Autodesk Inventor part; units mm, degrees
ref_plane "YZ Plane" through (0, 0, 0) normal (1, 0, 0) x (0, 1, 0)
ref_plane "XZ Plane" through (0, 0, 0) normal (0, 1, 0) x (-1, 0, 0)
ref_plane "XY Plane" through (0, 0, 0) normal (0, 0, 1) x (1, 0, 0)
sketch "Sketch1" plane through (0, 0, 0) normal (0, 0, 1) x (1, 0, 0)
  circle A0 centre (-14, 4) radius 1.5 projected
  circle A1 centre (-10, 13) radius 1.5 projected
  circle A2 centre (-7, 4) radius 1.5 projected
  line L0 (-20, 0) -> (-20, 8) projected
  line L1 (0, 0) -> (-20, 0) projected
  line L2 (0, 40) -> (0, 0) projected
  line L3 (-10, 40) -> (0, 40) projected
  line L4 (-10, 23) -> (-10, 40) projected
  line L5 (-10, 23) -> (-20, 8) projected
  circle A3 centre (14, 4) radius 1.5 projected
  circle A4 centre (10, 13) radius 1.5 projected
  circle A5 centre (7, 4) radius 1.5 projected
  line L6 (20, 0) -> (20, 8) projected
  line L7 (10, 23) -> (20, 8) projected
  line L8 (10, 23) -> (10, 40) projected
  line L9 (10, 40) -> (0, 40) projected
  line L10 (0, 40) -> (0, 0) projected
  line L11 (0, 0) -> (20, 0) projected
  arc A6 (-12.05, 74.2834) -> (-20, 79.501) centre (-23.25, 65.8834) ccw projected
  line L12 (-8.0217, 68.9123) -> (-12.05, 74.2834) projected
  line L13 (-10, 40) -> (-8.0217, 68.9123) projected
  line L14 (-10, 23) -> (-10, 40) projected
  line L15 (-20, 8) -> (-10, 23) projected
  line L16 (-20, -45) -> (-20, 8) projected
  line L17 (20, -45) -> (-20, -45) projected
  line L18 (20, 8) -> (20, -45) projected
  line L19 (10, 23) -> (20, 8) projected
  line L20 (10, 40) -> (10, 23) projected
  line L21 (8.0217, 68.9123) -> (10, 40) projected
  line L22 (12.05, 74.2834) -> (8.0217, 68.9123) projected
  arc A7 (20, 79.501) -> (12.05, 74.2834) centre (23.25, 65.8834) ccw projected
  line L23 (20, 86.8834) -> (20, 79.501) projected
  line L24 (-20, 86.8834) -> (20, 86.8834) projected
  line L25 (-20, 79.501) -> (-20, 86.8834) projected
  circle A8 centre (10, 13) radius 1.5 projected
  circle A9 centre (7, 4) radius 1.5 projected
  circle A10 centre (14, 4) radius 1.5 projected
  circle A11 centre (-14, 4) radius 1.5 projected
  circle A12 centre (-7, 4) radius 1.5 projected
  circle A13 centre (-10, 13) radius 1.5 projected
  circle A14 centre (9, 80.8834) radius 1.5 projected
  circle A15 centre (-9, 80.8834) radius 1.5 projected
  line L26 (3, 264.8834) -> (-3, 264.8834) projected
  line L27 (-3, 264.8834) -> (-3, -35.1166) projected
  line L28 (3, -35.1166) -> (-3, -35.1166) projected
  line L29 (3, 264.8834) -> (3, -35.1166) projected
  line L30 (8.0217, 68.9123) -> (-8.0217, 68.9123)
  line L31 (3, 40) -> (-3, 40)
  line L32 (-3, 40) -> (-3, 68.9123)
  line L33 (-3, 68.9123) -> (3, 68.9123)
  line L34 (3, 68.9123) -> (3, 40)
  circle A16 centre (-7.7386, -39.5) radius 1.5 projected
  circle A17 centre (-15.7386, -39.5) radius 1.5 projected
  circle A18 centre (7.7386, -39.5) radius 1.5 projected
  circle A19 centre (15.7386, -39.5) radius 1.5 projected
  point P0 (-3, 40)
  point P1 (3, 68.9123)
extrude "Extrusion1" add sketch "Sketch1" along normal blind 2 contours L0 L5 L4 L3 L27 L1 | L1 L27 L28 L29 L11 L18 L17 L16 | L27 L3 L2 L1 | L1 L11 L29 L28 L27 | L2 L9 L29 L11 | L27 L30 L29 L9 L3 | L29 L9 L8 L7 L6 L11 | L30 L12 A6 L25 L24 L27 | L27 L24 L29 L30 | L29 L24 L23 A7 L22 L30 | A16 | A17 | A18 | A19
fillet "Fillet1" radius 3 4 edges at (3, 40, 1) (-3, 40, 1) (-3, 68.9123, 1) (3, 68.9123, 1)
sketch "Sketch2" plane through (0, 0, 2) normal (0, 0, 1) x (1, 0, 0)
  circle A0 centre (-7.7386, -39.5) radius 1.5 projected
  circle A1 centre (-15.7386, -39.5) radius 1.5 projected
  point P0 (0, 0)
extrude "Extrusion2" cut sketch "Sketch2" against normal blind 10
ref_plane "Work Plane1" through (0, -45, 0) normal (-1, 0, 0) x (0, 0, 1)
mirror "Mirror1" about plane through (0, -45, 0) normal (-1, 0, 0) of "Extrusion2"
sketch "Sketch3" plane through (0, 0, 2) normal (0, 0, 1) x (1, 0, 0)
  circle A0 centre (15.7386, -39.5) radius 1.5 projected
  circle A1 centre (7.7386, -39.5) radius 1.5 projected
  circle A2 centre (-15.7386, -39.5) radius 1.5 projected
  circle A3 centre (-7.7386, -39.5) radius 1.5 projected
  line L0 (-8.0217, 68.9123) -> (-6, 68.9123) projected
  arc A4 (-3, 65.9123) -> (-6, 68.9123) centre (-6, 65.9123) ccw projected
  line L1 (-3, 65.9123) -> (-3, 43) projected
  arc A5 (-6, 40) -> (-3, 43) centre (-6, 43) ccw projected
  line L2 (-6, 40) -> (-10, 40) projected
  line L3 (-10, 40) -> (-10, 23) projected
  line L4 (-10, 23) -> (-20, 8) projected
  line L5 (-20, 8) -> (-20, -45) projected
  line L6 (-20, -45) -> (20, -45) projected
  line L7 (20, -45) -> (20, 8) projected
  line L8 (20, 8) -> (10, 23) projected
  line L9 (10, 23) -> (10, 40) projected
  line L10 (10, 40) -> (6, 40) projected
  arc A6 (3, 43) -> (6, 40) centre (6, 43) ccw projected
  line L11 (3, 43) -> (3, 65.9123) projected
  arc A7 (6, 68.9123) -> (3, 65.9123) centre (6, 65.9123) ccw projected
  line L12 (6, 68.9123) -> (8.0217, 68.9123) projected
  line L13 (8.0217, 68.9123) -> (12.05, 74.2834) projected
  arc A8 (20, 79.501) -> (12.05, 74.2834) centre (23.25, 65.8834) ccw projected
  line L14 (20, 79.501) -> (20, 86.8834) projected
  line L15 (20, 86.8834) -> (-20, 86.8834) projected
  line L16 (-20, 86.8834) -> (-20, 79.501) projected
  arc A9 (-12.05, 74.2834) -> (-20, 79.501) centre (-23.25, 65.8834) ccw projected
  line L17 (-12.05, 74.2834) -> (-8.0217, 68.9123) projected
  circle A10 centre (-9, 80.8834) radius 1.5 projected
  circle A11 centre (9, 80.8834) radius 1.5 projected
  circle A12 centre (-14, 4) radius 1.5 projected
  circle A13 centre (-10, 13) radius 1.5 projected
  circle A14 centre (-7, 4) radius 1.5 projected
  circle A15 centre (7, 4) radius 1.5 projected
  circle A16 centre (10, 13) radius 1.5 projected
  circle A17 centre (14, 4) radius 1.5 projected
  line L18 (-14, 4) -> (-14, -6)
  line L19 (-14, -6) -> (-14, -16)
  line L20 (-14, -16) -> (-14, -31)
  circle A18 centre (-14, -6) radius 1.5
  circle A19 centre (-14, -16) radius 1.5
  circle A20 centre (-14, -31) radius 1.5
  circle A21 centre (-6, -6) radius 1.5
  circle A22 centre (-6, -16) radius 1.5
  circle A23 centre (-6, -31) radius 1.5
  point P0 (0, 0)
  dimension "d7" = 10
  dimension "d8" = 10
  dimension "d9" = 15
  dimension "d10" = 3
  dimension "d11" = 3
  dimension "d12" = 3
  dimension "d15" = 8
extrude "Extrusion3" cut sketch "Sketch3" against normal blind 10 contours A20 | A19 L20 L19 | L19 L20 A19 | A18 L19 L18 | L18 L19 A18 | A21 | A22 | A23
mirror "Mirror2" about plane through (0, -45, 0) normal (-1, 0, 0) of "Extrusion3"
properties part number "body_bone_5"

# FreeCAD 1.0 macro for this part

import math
import FreeCAD as App
import Part
import Sketcher
Q = App.Units.Quantity


def edges_at(feature, points):
    """Names of the edges that pass closest to the given points."""
    edges = feature.Shape.Edges
    near = lambda p: min(range(len(edges)), key=lambda i: edges[i].distToShape(Part.Vertex(*p))[0])
    return sorted({f"Edge{near(p) + 1}" for p in points})

doc = App.newDocument("Part")
body = doc.addObject("PartDesign::Body", "Body")

# Sketch on XY plane
sketch1 = doc.addObject("Sketcher::SketchObject", "Sketch")
body.addObject(sketch1)
sketch1.AttachmentSupport = (doc.XY_Plane, [""])
sketch1.MapMode = "FlatFace"
sketch1.addGeometry(Part.LineSegment(App.Vector(-20, 8, 0), App.Vector(-20, -45, 0)), False)
sketch1.addGeometry(Part.LineSegment(App.Vector(-20, -45, 0), App.Vector(20, -45, 0)), False)
sketch1.addGeometry(Part.LineSegment(App.Vector(20, -45, 0), App.Vector(20, 8, 0)), False)
sketch1.addGeometry(Part.LineSegment(App.Vector(20, 8, 0), App.Vector(10, 23, 0)), False)
sketch1.addGeometry(Part.LineSegment(App.Vector(10, 23, 0), App.Vector(10, 40, 0)), False)
sketch1.addGeometry(Part.LineSegment(App.Vector(10, 40, 0), App.Vector(3, 40, 0)), False)
sketch1.addGeometry(Part.LineSegment(App.Vector(3, 40, 0), App.Vector(3, 68.9, 0)), False)
sketch1.addGeometry(Part.LineSegment(App.Vector(3, 68.9, 0), App.Vector(8, 68.9, 0)), False)
sketch1.addGeometry(Part.LineSegment(App.Vector(8, 68.9, 0), App.Vector(12.1, 74.3, 0)), False)
sketch1.addGeometry(Part.ArcOfCircle(Part.Circle(App.Vector(23.2, 65.9, 0), App.Vector(0, 0, 1), 14), math.radians(103), math.radians(143)), False)
sketch1.addGeometry(Part.LineSegment(App.Vector(20, 79.5, 0), App.Vector(20, 86.9, 0)), False)
sketch1.addGeometry(Part.LineSegment(App.Vector(20, 86.9, 0), App.Vector(-20, 86.9, 0)), False)
sketch1.addGeometry(Part.LineSegment(App.Vector(-20, 86.9, 0), App.Vector(-20, 79.5, 0)), False)
sketch1.addGeometry(Part.ArcOfCircle(Part.Circle(App.Vector(-23.2, 65.9, 0), App.Vector(0, 0, 1), 14), math.radians(37), math.radians(77)), False)
sketch1.addGeometry(Part.LineSegment(App.Vector(-12.1, 74.3, 0), App.Vector(-8, 68.9, 0)), False)
sketch1.addGeometry(Part.LineSegment(App.Vector(-8, 68.9, 0), App.Vector(-3, 68.9, 0)), False)
sketch1.addGeometry(Part.LineSegment(App.Vector(-3, 68.9, 0), App.Vector(-3, 40, 0)), False)
sketch1.addGeometry(Part.LineSegment(App.Vector(-3, 40, 0), App.Vector(-10, 40, 0)), False)
sketch1.addGeometry(Part.LineSegment(App.Vector(-10, 40, 0), App.Vector(-10, 23, 0)), False)
sketch1.addGeometry(Part.LineSegment(App.Vector(-10, 23, 0), App.Vector(-20, 8, 0)), False)
sketch1.addGeometry(Part.Circle(App.Vector(-14, 4, 0), App.Vector(0, 0, 1), 1.5), False)
sketch1.addGeometry(Part.Circle(App.Vector(-10, 13, 0), App.Vector(0, 0, 1), 1.5), False)
sketch1.addGeometry(Part.Circle(App.Vector(-7, 4, 0), App.Vector(0, 0, 1), 1.5), False)
sketch1.addGeometry(Part.Circle(App.Vector(10, 13, 0), App.Vector(0, 0, 1), 1.5), False)
sketch1.addGeometry(Part.Circle(App.Vector(14, 4, 0), App.Vector(0, 0, 1), 1.5), False)
sketch1.addGeometry(Part.Circle(App.Vector(7, 4, 0), App.Vector(0, 0, 1), 1.5), False)
sketch1.addGeometry(Part.Circle(App.Vector(-9, 80.9, 0), App.Vector(0, 0, 1), 1.5), False)
sketch1.addGeometry(Part.Circle(App.Vector(9, 80.9, 0), App.Vector(0, 0, 1), 1.5), False)
sketch1.addConstraint(Sketcher.Constraint("Coincident", 0, 2, 1, 1))
sketch1.addConstraint(Sketcher.Constraint("Coincident", 1, 2, 2, 1))
sketch1.addConstraint(Sketcher.Constraint("Coincident", 2, 2, 3, 1))
sketch1.addConstraint(Sketcher.Constraint("Coincident", 3, 2, 4, 1))
sketch1.addConstraint(Sketcher.Constraint("Coincident", 4, 2, 5, 1))
sketch1.addConstraint(Sketcher.Constraint("Coincident", 5, 2, 6, 1))
sketch1.addConstraint(Sketcher.Constraint("Coincident", 6, 2, 7, 1))
sketch1.addConstraint(Sketcher.Constraint("Coincident", 7, 2, 8, 1))
sketch1.addConstraint(Sketcher.Constraint("Tangent", 8, 2, 9, 2))
sketch1.addConstraint(Sketcher.Constraint("Coincident", 9, 1, 10, 1))
sketch1.addConstraint(Sketcher.Constraint("Coincident", 10, 2, 11, 1))
sketch1.addConstraint(Sketcher.Constraint("Coincident", 11, 2, 12, 1))
sketch1.addConstraint(Sketcher.Constraint("Coincident", 12, 2, 13, 2))
sketch1.addConstraint(Sketcher.Constraint("Tangent", 13, 1, 14, 1))
sketch1.addConstraint(Sketcher.Constraint("Coincident", 14, 2, 15, 1))
sketch1.addConstraint(Sketcher.Constraint("Coincident", 15, 2, 16, 1))
sketch1.addConstraint(Sketcher.Constraint("Coincident", 16, 2, 17, 1))
sketch1.addConstraint(Sketcher.Constraint("Coincident", 17, 2, 18, 1))
sketch1.addConstraint(Sketcher.Constraint("Coincident", 18, 2, 19, 1))
sketch1.addConstraint(Sketcher.Constraint("Coincident", 19, 2, 0, 1))
sketch1.addConstraint(Sketcher.Constraint("Vertical", 0))
sketch1.addConstraint(Sketcher.Constraint("Horizontal", 1))
sketch1.addConstraint(Sketcher.Constraint("Vertical", 2))
sketch1.addConstraint(Sketcher.Constraint("Vertical", 4))
sketch1.addConstraint(Sketcher.Constraint("Horizontal", 5))
sketch1.addConstraint(Sketcher.Constraint("Vertical", 6))
sketch1.addConstraint(Sketcher.Constraint("Horizontal", 7))
sketch1.addConstraint(Sketcher.Constraint("Vertical", 10))
sketch1.addConstraint(Sketcher.Constraint("Horizontal", 11))
sketch1.addConstraint(Sketcher.Constraint("Vertical", 12))
sketch1.addConstraint(Sketcher.Constraint("Horizontal", 15))
sketch1.addConstraint(Sketcher.Constraint("Vertical", 16))
sketch1.addConstraint(Sketcher.Constraint("Horizontal", 17))
sketch1.addConstraint(Sketcher.Constraint("Vertical", 18))
sketch1.addConstraint(Sketcher.Constraint("Equal", 9, 13))
sketch1.addConstraint(Sketcher.Constraint("Equal", 20, 21))
sketch1.addConstraint(Sketcher.Constraint("Equal", 21, 22))
sketch1.addConstraint(Sketcher.Constraint("Equal", 22, 23))
sketch1.addConstraint(Sketcher.Constraint("Equal", 23, 24))
sketch1.addConstraint(Sketcher.Constraint("Equal", 24, 25))
sketch1.addConstraint(Sketcher.Constraint("Equal", 25, 26))
sketch1.addConstraint(Sketcher.Constraint("Equal", 26, 27))
sketch1.addConstraint(Sketcher.Constraint("Symmetric", 9, 3, 13, 3, -2))
sketch1.addConstraint(Sketcher.Constraint("Symmetric", 21, 3, 23, 3, -2))
sketch1.addConstraint(Sketcher.Constraint("Symmetric", 20, 3, 24, 3, -2))
sketch1.addConstraint(Sketcher.Constraint("Symmetric", 22, 3, 25, 3, -2))
sketch1.addConstraint(Sketcher.Constraint("Symmetric", 26, 3, 27, 3, -2))
sketch1.addConstraint(Sketcher.Constraint("Symmetric", 7, 2, 14, 2, -2))
sketch1.addConstraint(Sketcher.Constraint("Symmetric", 5, 2, 16, 2, -2))
sketch1.addConstraint(Sketcher.Constraint("Symmetric", 3, 2, 18, 2, -2))
sketch1.addConstraint(Sketcher.Constraint("Symmetric", 2, 2, 19, 2, -2))
sketch1.addConstraint(Sketcher.Constraint("Horizontal", 20, 3, 22, 3))
sketch1.addConstraint(Sketcher.Constraint("Horizontal", 9, 1, 12, 2))
sketch1.addConstraint(Sketcher.Constraint("Vertical", 23, 3, 3, 2))
sketch1.addConstraint(Sketcher.Constraint("Vertical", 2, 2, 9, 1))
sketch1.addConstraint(Sketcher.Constraint("Diameter", 20, Q("3 mm")))
sketch1.addConstraint(Sketcher.Constraint("Radius", 9, Q("14 mm")))
sketch1.addConstraint(Sketcher.Constraint("DistanceX", 1, 1, 1, 2, Q("40 mm")))
sketch1.addConstraint(Sketcher.Constraint("DistanceX", 5, 2, 5, 1, Q("7 mm")))
sketch1.addConstraint(Sketcher.Constraint("DistanceY", 0, 2, 0, 1, Q("53 mm")))
sketch1.addConstraint(Sketcher.Constraint("DistanceY", 4, 1, 4, 2, Q("17 mm")))
sketch1.addConstraint(Sketcher.Constraint("DistanceX", 20, 3, -1, 1, Q("14 mm")))
sketch1.addConstraint(Sketcher.Constraint("DistanceY", -1, 1, 20, 3, Q("4 mm")))
sketch1.addConstraint(Sketcher.Constraint("DistanceX", 21, 3, -1, 1, Q("10 mm")))
sketch1.addConstraint(Sketcher.Constraint("DistanceY", -1, 1, 21, 3, Q("13 mm")))
sketch1.addConstraint(Sketcher.Constraint("DistanceX", 22, 3, -1, 1, Q("7 mm")))
sketch1.addConstraint(Sketcher.Constraint("DistanceX", 26, 3, -1, 1, Q("9 mm")))
sketch1.addConstraint(Sketcher.Constraint("DistanceY", 0, 2, -1, 1, Q("45 mm")))
sketch1.addConstraint(Sketcher.Constraint("DistanceY", -1, 1, 3, 2, Q("23 mm")))
sketch1.addConstraint(Sketcher.Constraint("DistanceY", 13, 3, 26, 3, Q("15 mm")))
sketch1.addConstraint(Sketcher.Constraint("DistanceY", 27, 3, 10, 2, Q("6 mm")))
sketch1.addConstraint(Sketcher.Constraint("Angle", 8, Q("53.1303 deg")))
sketch1.addConstraint(Sketcher.Constraint("DistanceX", 13, 3, 9, 3, Q("46.5 mm")))
sketch1.addConstraint(Sketcher.Constraint("DistanceX", 7, 1, 7, 2, Q("5.0217 mm")))
sketch1.addConstraint(Sketcher.Constraint("DistanceY", 6, 1, 6, 2, Q("28.9123 mm")))
pad1 = doc.addObject("PartDesign::Pad", "Pad")
body.addObject(pad1)
pad1.Profile = sketch1
pad1.Length = 2
doc.recompute()

fillet = doc.addObject("PartDesign::Fillet", "Fillet")
body.addObject(fillet)
fillet.Base = (pad1, edges_at(pad1, [
    (3, 40, 1),
    (-3, 40, 1),
    (-3, 68.912, 1),
    (3, 68.912, 1),
]))
fillet.Radius = 3

# Sketch on XY plane
sketch2 = doc.addObject("Sketcher::SketchObject", "Sketch001")
body.addObject(sketch2)
sketch2.AttachmentSupport = (doc.XY_Plane, [""])
sketch2.MapMode = "FlatFace"
sketch2.AttachmentOffset = App.Placement(App.Vector(0, 0, 2), App.Rotation())
sketch2.addGeometry(Part.Circle(App.Vector(-7.7, -39.5, 0), App.Vector(0, 0, 1), 1.5), False)
sketch2.addGeometry(Part.Circle(App.Vector(-15.7, -39.5, 0), App.Vector(0, 0, 1), 1.5), False)
sketch2.addConstraint(Sketcher.Constraint("Equal", 0, 1))
sketch2.addConstraint(Sketcher.Constraint("Horizontal", 0, 3, 1, 3))
sketch2.addConstraint(Sketcher.Constraint("Diameter", 0, Q("3 mm")))
sketch2.addConstraint(Sketcher.Constraint("DistanceX", 1, 3, 0, 3, Q("8 mm")))
sketch2.addConstraint(Sketcher.Constraint("DistanceY", 0, 3, -1, 1, Q("39.5 mm")))
sketch2.addConstraint(Sketcher.Constraint("DistanceX", 0, 3, -1, 1, Q("7.7386 mm")))
pocket1 = doc.addObject("PartDesign::Pocket", "Pocket")
body.addObject(pocket1)
pocket1.Profile = sketch2
pocket1.Length = 10
doc.recompute()

mirrored = doc.addObject("PartDesign::Mirrored", "Mirrored")
body.addObject(mirrored)
mirrored.Originals = [pocket1]
mirrored.MirrorPlane = (doc.YZ_Plane, [""])
body.Tip = mirrored

# Sketch on XY plane
sketch3 = doc.addObject("Sketcher::SketchObject", "Sketch002")
body.addObject(sketch3)
sketch3.AttachmentSupport = (doc.XY_Plane, [""])
sketch3.MapMode = "FlatFace"
sketch3.AttachmentOffset = App.Placement(App.Vector(0, 0, 2), App.Rotation())
sketch3.addGeometry(Part.Circle(App.Vector(-14, -31, 0), App.Vector(0, 0, 1), 1.5), False)
sketch3.addGeometry(Part.Circle(App.Vector(-14, -16, 0), App.Vector(0, 0, 1), 1.5), False)
sketch3.addGeometry(Part.Circle(App.Vector(-14, -6, 0), App.Vector(0, 0, 1), 1.5), False)
sketch3.addGeometry(Part.Circle(App.Vector(-6, -6, 0), App.Vector(0, 0, 1), 1.5), False)
sketch3.addGeometry(Part.Circle(App.Vector(-6, -16, 0), App.Vector(0, 0, 1), 1.5), False)
sketch3.addGeometry(Part.Circle(App.Vector(-6, -31, 0), App.Vector(0, 0, 1), 1.5), False)
sketch3.addConstraint(Sketcher.Constraint("Equal", 0, 1))
sketch3.addConstraint(Sketcher.Constraint("Equal", 1, 2))
sketch3.addConstraint(Sketcher.Constraint("Equal", 2, 3))
sketch3.addConstraint(Sketcher.Constraint("Equal", 3, 4))
sketch3.addConstraint(Sketcher.Constraint("Equal", 4, 5))
sketch3.addConstraint(Sketcher.Constraint("Horizontal", 2, 3, 3, 3))
sketch3.addConstraint(Sketcher.Constraint("Horizontal", 1, 3, 4, 3))
sketch3.addConstraint(Sketcher.Constraint("Horizontal", 0, 3, 5, 3))
sketch3.addConstraint(Sketcher.Constraint("Vertical", 0, 3, 1, 3))
sketch3.addConstraint(Sketcher.Constraint("Vertical", 1, 3, 2, 3))
sketch3.addConstraint(Sketcher.Constraint("Vertical", 3, 3, 4, 3))
sketch3.addConstraint(Sketcher.Constraint("Vertical", 4, 3, 5, 3))
sketch3.addConstraint(Sketcher.Constraint("Diameter", 0, Q("3 mm")))
sketch3.addConstraint(Sketcher.Constraint("DistanceY", 0, 3, 1, 3, Q("15 mm")))
sketch3.addConstraint(Sketcher.Constraint("DistanceY", 1, 3, 2, 3, Q("10 mm")))
sketch3.addConstraint(Sketcher.Constraint("DistanceX", 2, 3, 3, 3, Q("8 mm")))
sketch3.addConstraint(Sketcher.Constraint("DistanceX", 0, 3, -1, 1, Q("14 mm")))
sketch3.addConstraint(Sketcher.Constraint("DistanceY", 0, 3, -1, 1, Q("31 mm")))
pocket2 = doc.addObject("PartDesign::Pocket", "Pocket001")
body.addObject(pocket2)
pocket2.Profile = sketch3
pocket2.Length = 10
doc.recompute()

mirrored2 = doc.addObject("PartDesign::Mirrored", "Mirrored001")
body.addObject(mirrored2)
mirrored2.Originals = [pocket2]
mirrored2.MirrorPlane = (doc.YZ_Plane, [""])
body.Tip = mirrored2

doc.recompute()
